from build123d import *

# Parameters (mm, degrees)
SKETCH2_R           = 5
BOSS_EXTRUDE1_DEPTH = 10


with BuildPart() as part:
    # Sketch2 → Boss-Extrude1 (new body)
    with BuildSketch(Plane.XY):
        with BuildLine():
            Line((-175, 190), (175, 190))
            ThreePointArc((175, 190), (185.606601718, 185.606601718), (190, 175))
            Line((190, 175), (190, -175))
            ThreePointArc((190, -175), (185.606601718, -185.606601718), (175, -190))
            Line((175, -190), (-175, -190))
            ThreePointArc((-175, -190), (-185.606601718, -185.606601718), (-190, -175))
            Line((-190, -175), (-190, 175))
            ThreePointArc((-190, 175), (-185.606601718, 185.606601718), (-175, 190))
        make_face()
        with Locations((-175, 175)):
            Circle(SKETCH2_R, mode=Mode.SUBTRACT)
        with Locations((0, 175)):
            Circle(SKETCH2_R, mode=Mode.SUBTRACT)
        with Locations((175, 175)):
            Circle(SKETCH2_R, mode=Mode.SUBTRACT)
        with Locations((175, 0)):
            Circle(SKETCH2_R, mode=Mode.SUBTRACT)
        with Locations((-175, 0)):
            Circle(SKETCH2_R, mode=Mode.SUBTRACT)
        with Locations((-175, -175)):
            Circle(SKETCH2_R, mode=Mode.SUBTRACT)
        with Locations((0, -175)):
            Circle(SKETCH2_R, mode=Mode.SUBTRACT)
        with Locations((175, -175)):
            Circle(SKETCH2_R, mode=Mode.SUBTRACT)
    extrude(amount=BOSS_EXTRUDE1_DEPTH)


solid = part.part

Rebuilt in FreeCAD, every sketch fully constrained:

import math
import FreeCAD as App
import Part
import Sketcher
Q = App.Units.Quantity

doc = App.newDocument("Part")
params = doc.addObject("Spreadsheet::Sheet", "Params")
for row, (alias, value) in enumerate([
    ("sketch1_diameter", "10 mm"),
    ("sketch1_radius", "15 mm"),
    ("sketch1_width", "350 mm"),
    ("pad1_length", "10 mm"),
], start=1):
    params.set(f"A{row}", alias)
    params.set(f"B{row}", "=" + value)
    params.setAlias(f"B{row}", alias)

body = doc.addObject("PartDesign::Body", "Body")

# Sketch on XY plane
sketch1 = doc.addObject("Sketcher::SketchObject", "Sketch")
body.addObject(sketch1)
sketch1.AttachmentSupport = (doc.XY_Plane, [""])
sketch1.MapMode = "FlatFace"
sketch1.addGeometry([
    Part.LineSegment(App.Vector(175, 190, 0), App.Vector(-175, 190, 0)),  # 0
    Part.ArcOfCircle(Part.Circle(App.Vector(-175, 175, 0), App.Vector(0, 0, 1), 15), math.radians(90), math.radians(180)),  # 1
    Part.LineSegment(App.Vector(-190, 175, 0), App.Vector(-190, -175, 0)),  # 2
    Part.ArcOfCircle(Part.Circle(App.Vector(-175, -175, 0), App.Vector(0, 0, 1), 15), math.radians(180), math.radians(270)),  # 3
    Part.LineSegment(App.Vector(-175, -190, 0), App.Vector(175, -190, 0)),  # 4
    Part.ArcOfCircle(Part.Circle(App.Vector(175, -175, 0), App.Vector(0, 0, 1), 15), math.radians(-90), math.radians(0)),  # 5
    Part.LineSegment(App.Vector(190, -175, 0), App.Vector(190, 175, 0)),  # 6
    Part.ArcOfCircle(Part.Circle(App.Vector(175, 175, 0), App.Vector(0, 0, 1), 15), math.radians(0), math.radians(90)),  # 7
    Part.Circle(App.Vector(175, -175, 0), App.Vector(0, 0, 1), 5),  # 8
    Part.Circle(App.Vector(0, -175, 0), App.Vector(0, 0, 1), 5),  # 9
    Part.Circle(App.Vector(-175, -175, 0), App.Vector(0, 0, 1), 5),  # 10
    Part.Circle(App.Vector(175, 0, 0), App.Vector(0, 0, 1), 5),  # 11
    Part.Circle(App.Vector(175, 175, 0), App.Vector(0, 0, 1), 5),  # 12
    Part.Circle(App.Vector(-175, 0, 0), App.Vector(0, 0, 1), 5),  # 13
    Part.Circle(App.Vector(0, 175, 0), App.Vector(0, 0, 1), 5),  # 14
    Part.Circle(App.Vector(-175, 175, 0), App.Vector(0, 0, 1), 5),  # 15
], False)
sketch1.addConstraint([
    Sketcher.Constraint("Tangent", 0, 2, 1, 1),
    Sketcher.Constraint("Tangent", 1, 2, 2, 1),
    Sketcher.Constraint("Tangent", 2, 2, 3, 1),
    Sketcher.Constraint("Tangent", 3, 2, 4, 1),
    Sketcher.Constraint("Tangent", 4, 2, 5, 1),
    Sketcher.Constraint("Tangent", 5, 2, 6, 1),
    Sketcher.Constraint("Tangent", 6, 2, 7, 1),
    Sketcher.Constraint("Tangent", 7, 2, 0, 1),
    Sketcher.Constraint("Horizontal", 0),
    Sketcher.Constraint("Vertical", 2),
    Sketcher.Constraint("Horizontal", 4),
    Sketcher.Constraint("Vertical", 6),
    Sketcher.Constraint("Coincident", 8, 3, 5, 3),
    Sketcher.Constraint("Coincident", 10, 3, 3, 3),
    Sketcher.Constraint("Coincident", 12, 3, 7, 3),
    Sketcher.Constraint("Coincident", 15, 3, 1, 3),
    Sketcher.Constraint("Equal", 1, 3),
    Sketcher.Constraint("Equal", 3, 5),
    Sketcher.Constraint("Equal", 5, 7),
    Sketcher.Constraint("Equal", 8, 9),
    Sketcher.Constraint("Equal", 9, 10),
    Sketcher.Constraint("Equal", 10, 11),
    Sketcher.Constraint("Equal", 11, 12),
    Sketcher.Constraint("Equal", 12, 13),
    Sketcher.Constraint("Equal", 13, 14),
    Sketcher.Constraint("Equal", 14, 15),
    Sketcher.Constraint("Symmetric", 1, 3, 5, 3, -1, 1),
    Sketcher.Constraint("Symmetric", 11, 3, 13, 3, -1, 1),
    Sketcher.Constraint("Symmetric", 9, 3, 14, 3, -1, 1),
    Sketcher.Constraint("PointOnObject", 9, 3, -2),
    Sketcher.Constraint("PointOnObject", 11, 3, -1),
    Sketcher.Constraint("Horizontal", 8, 3, 9, 3),
    Sketcher.Constraint("Vertical", 8, 3, 11, 3),
    Sketcher.Constraint("Equal", 4, 2),
    Sketcher.Constraint("Diameter", 8, Q("10 mm")),
    Sketcher.Constraint("Radius", 1, Q("15 mm")),
    Sketcher.Constraint("DistanceX", 0, 2, 0, 1, Q("350 mm")),
])
sketch1.setExpression("Constraints[34]", "Params.sketch1_diameter")
sketch1.setExpression("Constraints[35]", "Params.sketch1_radius")
sketch1.setExpression("Constraints[36]", "Params.sketch1_width")
pad1 = doc.addObject("PartDesign::Pad", "Pad")
body.addObject(pad1)
pad1.Profile = sketch1
pad1.setExpression("Length", "Params.pad1_length")

doc.recompute()
